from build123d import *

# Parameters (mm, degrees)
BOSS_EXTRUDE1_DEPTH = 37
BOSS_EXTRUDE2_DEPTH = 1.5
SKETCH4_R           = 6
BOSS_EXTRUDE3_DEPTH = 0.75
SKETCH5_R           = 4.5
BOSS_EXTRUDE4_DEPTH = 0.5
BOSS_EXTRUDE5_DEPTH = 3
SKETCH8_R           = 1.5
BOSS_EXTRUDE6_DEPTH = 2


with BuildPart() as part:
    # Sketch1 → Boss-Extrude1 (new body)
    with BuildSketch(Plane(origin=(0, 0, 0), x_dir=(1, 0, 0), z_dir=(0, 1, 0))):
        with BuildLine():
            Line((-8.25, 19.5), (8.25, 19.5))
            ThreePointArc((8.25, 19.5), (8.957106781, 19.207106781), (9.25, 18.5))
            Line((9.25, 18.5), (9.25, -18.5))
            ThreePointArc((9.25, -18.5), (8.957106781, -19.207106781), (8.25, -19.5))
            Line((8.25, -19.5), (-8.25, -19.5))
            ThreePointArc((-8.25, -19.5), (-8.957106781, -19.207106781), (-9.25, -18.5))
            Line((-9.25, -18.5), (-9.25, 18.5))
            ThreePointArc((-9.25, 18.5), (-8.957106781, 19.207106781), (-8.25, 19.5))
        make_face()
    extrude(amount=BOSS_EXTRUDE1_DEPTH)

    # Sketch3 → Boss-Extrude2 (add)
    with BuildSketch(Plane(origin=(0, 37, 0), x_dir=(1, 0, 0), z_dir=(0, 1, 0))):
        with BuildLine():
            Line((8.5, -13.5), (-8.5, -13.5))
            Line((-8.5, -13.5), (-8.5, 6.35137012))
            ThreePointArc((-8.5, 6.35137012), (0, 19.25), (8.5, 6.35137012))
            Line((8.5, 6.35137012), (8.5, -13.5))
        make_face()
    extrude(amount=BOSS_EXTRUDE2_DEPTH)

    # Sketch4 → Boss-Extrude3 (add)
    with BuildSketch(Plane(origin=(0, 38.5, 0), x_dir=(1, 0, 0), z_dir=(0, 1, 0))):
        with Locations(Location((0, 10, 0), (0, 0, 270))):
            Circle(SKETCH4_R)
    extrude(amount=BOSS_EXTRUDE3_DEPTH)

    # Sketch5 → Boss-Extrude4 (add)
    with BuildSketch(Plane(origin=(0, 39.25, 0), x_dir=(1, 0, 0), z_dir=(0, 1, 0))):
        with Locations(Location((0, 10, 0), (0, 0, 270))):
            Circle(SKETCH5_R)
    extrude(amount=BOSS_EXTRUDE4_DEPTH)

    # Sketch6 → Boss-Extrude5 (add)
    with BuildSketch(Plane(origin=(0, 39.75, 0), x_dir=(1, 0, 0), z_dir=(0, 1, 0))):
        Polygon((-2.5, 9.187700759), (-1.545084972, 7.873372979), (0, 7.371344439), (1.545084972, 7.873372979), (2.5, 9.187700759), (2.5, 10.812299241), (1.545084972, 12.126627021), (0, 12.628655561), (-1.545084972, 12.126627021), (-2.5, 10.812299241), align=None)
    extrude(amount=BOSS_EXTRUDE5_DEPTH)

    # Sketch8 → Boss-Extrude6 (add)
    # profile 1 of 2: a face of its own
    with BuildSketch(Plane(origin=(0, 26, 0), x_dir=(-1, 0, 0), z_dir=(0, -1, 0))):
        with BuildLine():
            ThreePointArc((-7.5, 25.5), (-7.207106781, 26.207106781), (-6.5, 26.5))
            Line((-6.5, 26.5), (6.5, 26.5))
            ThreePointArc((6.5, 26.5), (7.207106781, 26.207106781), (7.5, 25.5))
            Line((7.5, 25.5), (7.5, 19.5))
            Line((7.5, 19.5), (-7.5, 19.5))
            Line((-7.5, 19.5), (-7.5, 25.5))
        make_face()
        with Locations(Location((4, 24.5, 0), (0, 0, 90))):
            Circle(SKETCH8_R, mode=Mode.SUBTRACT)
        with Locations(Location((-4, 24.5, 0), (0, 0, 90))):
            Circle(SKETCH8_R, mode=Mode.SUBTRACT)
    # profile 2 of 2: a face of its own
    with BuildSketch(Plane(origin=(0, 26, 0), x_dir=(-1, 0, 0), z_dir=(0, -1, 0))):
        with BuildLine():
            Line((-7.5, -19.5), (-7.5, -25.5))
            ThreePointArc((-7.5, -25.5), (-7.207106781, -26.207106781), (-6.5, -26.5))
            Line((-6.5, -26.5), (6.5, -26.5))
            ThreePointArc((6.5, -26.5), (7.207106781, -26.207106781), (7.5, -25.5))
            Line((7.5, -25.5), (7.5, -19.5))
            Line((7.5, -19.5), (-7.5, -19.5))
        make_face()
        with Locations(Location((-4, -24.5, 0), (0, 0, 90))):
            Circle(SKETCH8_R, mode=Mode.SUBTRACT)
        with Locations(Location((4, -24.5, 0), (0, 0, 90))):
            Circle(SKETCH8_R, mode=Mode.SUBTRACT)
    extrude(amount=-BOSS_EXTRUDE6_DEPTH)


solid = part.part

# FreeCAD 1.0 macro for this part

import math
import FreeCAD as App
import Part
import Sketcher

V = App.Vector
Q = App.Units.Quantity

doc = App.newDocument("Part")
body = doc.addObject("PartDesign::Body", "Body")

# Sketch on XZ plane
sketch1 = body.newObject("Sketcher::SketchObject", "Sketch")
sketch1.AttachmentSupport = (doc.getObject("XZ_Plane"), [""])
sketch1.MapMode = "FlatFace"
sketch1.addGeometry(Part.LineSegment(V(8.2, -19.5, 0), V(-8.2, -19.5, 0)), False)
sketch1.addGeometry(Part.ArcOfCircle(Part.Circle(V(-8.2, -18.5, 0), V(0, 0, 1), 1), math.radians(-180), math.radians(-90)), False)
sketch1.addGeometry(Part.LineSegment(V(-9.2, -18.5, 0), V(-9.2, 18.5, 0)), False)
sketch1.addGeometry(Part.ArcOfCircle(Part.Circle(V(-8.2, 18.5, 0), V(0, 0, 1), 1), math.radians(90), math.radians(180)), False)
sketch1.addGeometry(Part.LineSegment(V(-8.2, 19.5, 0), V(8.2, 19.5, 0)), False)
sketch1.addGeometry(Part.ArcOfCircle(Part.Circle(V(8.2, 18.5, 0), V(0, 0, 1), 1), math.radians(0), math.radians(90)), False)
sketch1.addGeometry(Part.LineSegment(V(9.2, 18.5, 0), V(9.2, -18.5, 0)), False)
sketch1.addGeometry(Part.ArcOfCircle(Part.Circle(V(8.2, -18.5, 0), V(0, 0, 1), 1), math.radians(-90), math.radians(0)), False)
sketch1.addConstraint(Sketcher.Constraint("Tangent", 0, 2, 1, 2))
sketch1.addConstraint(Sketcher.Constraint("Tangent", 1, 1, 2, 1))
sketch1.addConstraint(Sketcher.Constraint("Tangent", 2, 2, 3, 2))
sketch1.addConstraint(Sketcher.Constraint("Tangent", 3, 1, 4, 1))
sketch1.addConstraint(Sketcher.Constraint("Tangent", 4, 2, 5, 2))
sketch1.addConstraint(Sketcher.Constraint("Tangent", 5, 1, 6, 1))
sketch1.addConstraint(Sketcher.Constraint("Tangent", 6, 2, 7, 2))
sketch1.addConstraint(Sketcher.Constraint("Tangent", 7, 1, 0, 1))
sketch1.addConstraint(Sketcher.Constraint("Horizontal", 0))
sketch1.addConstraint(Sketcher.Constraint("Vertical", 2))
sketch1.addConstraint(Sketcher.Constraint("Horizontal", 4))
sketch1.addConstraint(Sketcher.Constraint("Vertical", 6))
sketch1.addConstraint(Sketcher.Constraint("Equal", 1, 3))
sketch1.addConstraint(Sketcher.Constraint("Equal", 3, 5))
sketch1.addConstraint(Sketcher.Constraint("Equal", 5, 7))
sketch1.addConstraint(Sketcher.Constraint("Symmetric", 1, 3, 5, 3, -1, 1))
sketch1.addConstraint(Sketcher.Constraint("Radius", 1, 1.0))
sketch1.addConstraint(Sketcher.Constraint("DistanceY", 2, 1, 2, 2, 37.0))
sketch1.addConstraint(Sketcher.Constraint("DistanceX", 0, 2, 0, 1, 16.5))
pad1 = body.newObject("PartDesign::Pad", "Pad")
pad1.Profile = sketch1
pad1.Length = 37
pad1.Reversed = True

# Sketch on XZ plane
sketch2 = body.newObject("Sketcher::SketchObject", "Sketch001")
sketch2.AttachmentSupport = (doc.getObject("XZ_Plane"), [""])
sketch2.MapMode = "FlatFace"
sketch2.AttachmentOffset = App.Placement(V(0, 0, -37), App.Rotation())
sketch2.addGeometry(Part.LineSegment(V(-8, 14, 0), V(8, 14, 0)), False)
sketch2.addGeometry(Part.LineSegment(V(8, 14, 0), V(8, -6, 0)), False)
sketch2.addGeometry(Part.ArcOfCircle(Part.Circle(V(0, -10, 0), V(0, 0, 1), 9), math.radians(157), math.radians(383)), False)
sketch2.addGeometry(Part.LineSegment(V(-8, -6, 0), V(-8, 14, 0)), False)
sketch2.addConstraint(Sketcher.Constraint("Coincident", 0, 2, 1, 1))
sketch2.addConstraint(Sketcher.Constraint("Coincident", 1, 2, 2, 2))
sketch2.addConstraint(Sketcher.Constraint("Coincident", 2, 1, 3, 1))
sketch2.addConstraint(Sketcher.Constraint("Coincident", 3, 2, 0, 1))
sketch2.addConstraint(Sketcher.Constraint("Horizontal", 0))
sketch2.addConstraint(Sketcher.Constraint("Vertical", 1))
sketch2.addConstraint(Sketcher.Constraint("Vertical", 3))
sketch2.addConstraint(Sketcher.Constraint("Symmetric", 1, 2, 2, 1, -2))
sketch2.addConstraint(Sketcher.Constraint("DistanceX", 0, 1, 0, 2, 17.0))
sketch2.addConstraint(Sketcher.Constraint("Radius", 2, 9.25))
sketch2.addConstraint(Sketcher.Constraint("DistanceY", 2, 3, -1, 1, 10.0))
sketch2.addConstraint(Sketcher.Constraint("DistanceY", -1, 1, 0, 2, 13.5))
pad2 = body.newObject("PartDesign::Pad", "Pad001")
pad2.Profile = sketch2
pad2.Length = 1.5
pad2.Reversed = True

# Sketch on XZ plane
sketch3 = body.newObject("Sketcher::SketchObject", "Sketch002")
sketch3.AttachmentSupport = (doc.getObject("XZ_Plane"), [""])
sketch3.MapMode = "FlatFace"
sketch3.AttachmentOffset = App.Placement(V(0, 0, -38.5), App.Rotation())
sketch3.addGeometry(Part.Circle(V(0, -10, 0), V(0, 0, 1), 6), False)
sketch3.addConstraint(Sketcher.Constraint("PointOnObject", 0, 3, -2))
sketch3.addConstraint(Sketcher.Constraint("Diameter", 0, 12.0))
sketch3.addConstraint(Sketcher.Constraint("DistanceY", 0, 3, -1, 1, 10.0))
pad3 = body.newObject("PartDesign::Pad", "Pad002")
pad3.Profile = sketch3
pad3.Length = 0.75
pad3.Reversed = True

# Sketch on XZ plane
sketch4 = body.newObject("Sketcher::SketchObject", "Sketch003")
sketch4.AttachmentSupport = (doc.getObject("XZ_Plane"), [""])
sketch4.MapMode = "FlatFace"
sketch4.AttachmentOffset = App.Placement(V(0, 0, -39.25), App.Rotation())
sketch4.addGeometry(Part.Circle(V(0, -10, 0), V(0, 0, 1), 4.5), False)
sketch4.addConstraint(Sketcher.Constraint("PointOnObject", 0, 3, -2))
sketch4.addConstraint(Sketcher.Constraint("Diameter", 0, 9.0))
sketch4.addConstraint(Sketcher.Constraint("DistanceY", 0, 3, -1, 1, 10.0))
pad4 = body.newObject("PartDesign::Pad", "Pad003")
pad4.Profile = sketch4
pad4.Length = 0.5
pad4.Reversed = True

# Sketch on XZ plane
sketch5 = body.newObject("Sketcher::SketchObject", "Sketch004")
sketch5.AttachmentSupport = (doc.getObject("XZ_Plane"), [""])
sketch5.MapMode = "FlatFace"
sketch5.AttachmentOffset = App.Placement(V(0, 0, -39.75), App.Rotation())
sketch5.addGeometry(Part.LineSegment(V(-2.5, -9.2, 0), V(-1.5, -7.9, 0)), False)
sketch5.addGeometry(Part.LineSegment(V(-1.5, -7.9, 0), V(0, -7.4, 0)), False)
sketch5.addGeometry(Part.LineSegment(V(0, -7.4, 0), V(1.5, -7.9, 0)), False)
sketch5.addGeometry(Part.LineSegment(V(1.5, -7.9, 0), V(2.5, -9.2, 0)), False)
sketch5.addGeometry(Part.LineSegment(V(2.5, -9.2, 0), V(2.5, -10.8, 0)), False)
sketch5.addGeometry(Part.LineSegment(V(2.5, -10.8, 0), V(1.5, -12.1, 0)), False)
sketch5.addGeometry(Part.LineSegment(V(1.5, -12.1, 0), V(0, -12.6, 0)), False)
sketch5.addGeometry(Part.LineSegment(V(0, -12.6, 0), V(-1.5, -12.1, 0)), False)
sketch5.addGeometry(Part.LineSegment(V(-1.5, -12.1, 0), V(-2.5, -10.8, 0)), False)
sketch5.addGeometry(Part.LineSegment(V(-2.5, -10.8, 0), V(-2.5, -9.2, 0)), False)
sketch5.addConstraint(Sketcher.Constraint("Coincident", 0, 2, 1, 1))
sketch5.addConstraint(Sketcher.Constraint("Coincident", 1, 2, 2, 1))
sketch5.addConstraint(Sketcher.Constraint("Coincident", 2, 2, 3, 1))
sketch5.addConstraint(Sketcher.Constraint("Coincident", 3, 2, 4, 1))
sketch5.addConstraint(Sketcher.Constraint("Coincident", 4, 2, 5, 1))
sketch5.addConstraint(Sketcher.Constraint("Coincident", 5, 2, 6, 1))
sketch5.addConstraint(Sketcher.Constraint("Coincident", 6, 2, 7, 1))
sketch5.addConstraint(Sketcher.Constraint("Coincident", 7, 2, 8, 1))
sketch5.addConstraint(Sketcher.Constraint("Coincident", 8, 2, 9, 1))
sketch5.addConstraint(Sketcher.Constraint("Coincident", 9, 2, 0, 1))
sketch5.addConstraint(Sketcher.Constraint("Vertical", 4))
sketch5.addConstraint(Sketcher.Constraint("Vertical", 9))
sketch5.addConstraint(Sketcher.Constraint("Symmetric", 0, 2, 2, 2, -2))
sketch5.addConstraint(Sketcher.Constraint("Symmetric", 5, 2, 7, 2, -2))
sketch5.addConstraint(Sketcher.Constraint("Symmetric", 4, 2, 8, 2, -2))
sketch5.addConstraint(Sketcher.Constraint("PointOnObject", 1, 2, -2))
sketch5.addConstraint(Sketcher.Constraint("PointOnObject", 6, 2, -2))
sketch5.addConstraint(Sketcher.Constraint("Parallel", 0, 5))
sketch5.addConstraint(Sketcher.Constraint("Parallel", 1, 6))
sketch5.addConstraint(Sketcher.Constraint("Parallel", 3, 8))
sketch5.addConstraint(Sketcher.Constraint("Vertical", 2, 2, 5, 2))
sketch5.addConstraint(Sketcher.Constraint("Equal", 0, 1))
sketch5.addConstraint(Sketcher.Constraint("Angle", 0, Q("54 deg")))
sketch5.addConstraint(Sketcher.Constraint("Angle", 1, Q("18 deg")))
sketch5.addConstraint(Sketcher.Constraint("DistanceX", -1, 1, 3, 2, 2.5))
sketch5.addConstraint(Sketcher.Constraint("DistanceY", 4, 2, 4, 1, 1.624598))
sketch5.addConstraint(Sketcher.Constraint("DistanceY", 3, 2, -1, 1, 9.187701))
pad5 = body.newObject("PartDesign::Pad", "Pad004")
pad5.Profile = sketch5
pad5.Length = 3
pad5.Reversed = True

# Sketch on XZ plane
sketch6 = body.newObject("Sketcher::SketchObject", "Sketch005")
sketch6.AttachmentSupport = (doc.getObject("XZ_Plane"), [""])
sketch6.MapMode = "FlatFace"
sketch6.AttachmentOffset = App.Placement(V(0, 0, -26), App.Rotation())
sketch6.addGeometry(Part.ArcOfCircle(Part.Circle(V(6.5, -25.5, 0), V(0, 0, 1), 1), math.radians(-90), math.radians(0)), False)
sketch6.addGeometry(Part.LineSegment(V(7.5, -25.5, 0), V(7.5, -19.5, 0)), False)
sketch6.addGeometry(Part.LineSegment(V(7.5, -19.5, 0), V(-7.5, -19.5, 0)), False)
sketch6.addGeometry(Part.LineSegment(V(-7.5, -19.5, 0), V(-7.5, -25.5, 0)), False)
sketch6.addGeometry(Part.ArcOfCircle(Part.Circle(V(-6.5, -25.5, 0), V(0, 0, 1), 1), math.radians(-180), math.radians(-90)), False)
sketch6.addGeometry(Part.LineSegment(V(-6.5, -26.5, 0), V(6.5, -26.5, 0)), False)
sketch6.addGeometry(Part.Circle(V(-4, -24.5, 0), V(0, 0, 1), 1.5), False)
sketch6.addGeometry(Part.Circle(V(4, -24.5, 0), V(0, 0, 1), 1.5), False)
sketch6.addGeometry(Part.LineSegment(V(7.5, 19.5, 0), V(7.5, 25.5, 0)), False)
sketch6.addGeometry(Part.ArcOfCircle(Part.Circle(V(6.5, 25.5, 0), V(0, 0, 1), 1), math.radians(0), math.radians(90)), False)
sketch6.addGeometry(Part.LineSegment(V(6.5, 26.5, 0), V(-6.5, 26.5, 0)), False)
sketch6.addGeometry(Part.ArcOfCircle(Part.Circle(V(-6.5, 25.5, 0), V(0, 0, 1), 1), math.radians(90), math.radians(180)), False)
sketch6.addGeometry(Part.LineSegment(V(-7.5, 25.5, 0), V(-7.5, 19.5, 0)), False)
sketch6.addGeometry(Part.LineSegment(V(-7.5, 19.5, 0), V(7.5, 19.5, 0)), False)
sketch6.addGeometry(Part.Circle(V(4, 24.5, 0), V(0, 0, 1), 1.5), False)
sketch6.addGeometry(Part.Circle(V(-4, 24.5, 0), V(0, 0, 1), 1.5), False)
sketch6.addConstraint(Sketcher.Constraint("Tangent", 0, 2, 1, 1))
sketch6.addConstraint(Sketcher.Constraint("Coincident", 1, 2, 2, 1))
sketch6.addConstraint(Sketcher.Constraint("Coincident", 2, 2, 3, 1))
sketch6.addConstraint(Sketcher.Constraint("Tangent", 3, 2, 4, 1))
sketch6.addConstraint(Sketcher.Constraint("Tangent", 4, 2, 5, 1))
sketch6.addConstraint(Sketcher.Constraint("Tangent", 5, 2, 0, 1))
sketch6.addConstraint(Sketcher.Constraint("Tangent", 8, 2, 9, 1))
sketch6.addConstraint(Sketcher.Constraint("Tangent", 9, 2, 10, 1))
sketch6.addConstraint(Sketcher.Constraint("Tangent", 10, 2, 11, 1))
sketch6.addConstraint(Sketcher.Constraint("Tangent", 11, 2, 12, 1))
sketch6.addConstraint(Sketcher.Constraint("Coincident", 12, 2, 13, 1))
sketch6.addConstraint(Sketcher.Constraint("Coincident", 13, 2, 8, 1))
sketch6.addConstraint(Sketcher.Constraint("Vertical", 1))
sketch6.addConstraint(Sketcher.Constraint("Horizontal", 2))
sketch6.addConstraint(Sketcher.Constraint("Vertical", 3))
sketch6.addConstraint(Sketcher.Constraint("Horizontal", 5))
sketch6.addConstraint(Sketcher.Constraint("Vertical", 8))
sketch6.addConstraint(Sketcher.Constraint("Horizontal", 10))
sketch6.addConstraint(Sketcher.Constraint("Vertical", 12))
sketch6.addConstraint(Sketcher.Constraint("Horizontal", 13))
sketch6.addConstraint(Sketcher.Constraint("Equal", 0, 4))
sketch6.addConstraint(Sketcher.Constraint("Equal", 6, 7))
sketch6.addConstraint(Sketcher.Constraint("Equal", 4, 9))
sketch6.addConstraint(Sketcher.Constraint("Equal", 9, 11))
sketch6.addConstraint(Sketcher.Constraint("Equal", 7, 14))
sketch6.addConstraint(Sketcher.Constraint("Equal", 14, 15))
sketch6.addConstraint(Sketcher.Constraint("Symmetric", 4, 3, 9, 3, -1, 1))
sketch6.addConstraint(Sketcher.Constraint("Symmetric", 6, 3, 14, 3, -1, 1))
sketch6.addConstraint(Sketcher.Constraint("Symmetric", 7, 3, 15, 3, -1, 1))
sketch6.addConstraint(Sketcher.Constraint("Symmetric", 1, 2, 12, 2, -1, 1))
sketch6.addConstraint(Sketcher.Constraint("Symmetric", 6, 3, 7, 3, -2))
sketch6.addConstraint(Sketcher.Constraint("Vertical", 0, 3, 9, 3))
sketch6.addConstraint(Sketcher.Constraint("Diameter", 6, 3.0))
sketch6.addConstraint(Sketcher.Constraint("Radius", 0, 1.0))
sketch6.addConstraint(Sketcher.Constraint("DistanceX", 2, 2, 2, 1, 15.0))
sketch6.addConstraint(Sketcher.Constraint("DistanceY", 1, 1, 1, 2, 6.0))
sketch6.addConstraint(Sketcher.Constraint("DistanceX", 6, 3, -1, 1, 4.0))
sketch6.addConstraint(Sketcher.Constraint("DistanceY", 4, 3, 6, 3, 1.0))
sketch6.addConstraint(Sketcher.Constraint("DistanceY", 7, 3, 9, 3, 50.0))
pad6 = body.newObject("PartDesign::Pad", "Pad005")
pad6.Profile = sketch6
pad6.Length = 2
pad6.Reversed = True

doc.recompute()
